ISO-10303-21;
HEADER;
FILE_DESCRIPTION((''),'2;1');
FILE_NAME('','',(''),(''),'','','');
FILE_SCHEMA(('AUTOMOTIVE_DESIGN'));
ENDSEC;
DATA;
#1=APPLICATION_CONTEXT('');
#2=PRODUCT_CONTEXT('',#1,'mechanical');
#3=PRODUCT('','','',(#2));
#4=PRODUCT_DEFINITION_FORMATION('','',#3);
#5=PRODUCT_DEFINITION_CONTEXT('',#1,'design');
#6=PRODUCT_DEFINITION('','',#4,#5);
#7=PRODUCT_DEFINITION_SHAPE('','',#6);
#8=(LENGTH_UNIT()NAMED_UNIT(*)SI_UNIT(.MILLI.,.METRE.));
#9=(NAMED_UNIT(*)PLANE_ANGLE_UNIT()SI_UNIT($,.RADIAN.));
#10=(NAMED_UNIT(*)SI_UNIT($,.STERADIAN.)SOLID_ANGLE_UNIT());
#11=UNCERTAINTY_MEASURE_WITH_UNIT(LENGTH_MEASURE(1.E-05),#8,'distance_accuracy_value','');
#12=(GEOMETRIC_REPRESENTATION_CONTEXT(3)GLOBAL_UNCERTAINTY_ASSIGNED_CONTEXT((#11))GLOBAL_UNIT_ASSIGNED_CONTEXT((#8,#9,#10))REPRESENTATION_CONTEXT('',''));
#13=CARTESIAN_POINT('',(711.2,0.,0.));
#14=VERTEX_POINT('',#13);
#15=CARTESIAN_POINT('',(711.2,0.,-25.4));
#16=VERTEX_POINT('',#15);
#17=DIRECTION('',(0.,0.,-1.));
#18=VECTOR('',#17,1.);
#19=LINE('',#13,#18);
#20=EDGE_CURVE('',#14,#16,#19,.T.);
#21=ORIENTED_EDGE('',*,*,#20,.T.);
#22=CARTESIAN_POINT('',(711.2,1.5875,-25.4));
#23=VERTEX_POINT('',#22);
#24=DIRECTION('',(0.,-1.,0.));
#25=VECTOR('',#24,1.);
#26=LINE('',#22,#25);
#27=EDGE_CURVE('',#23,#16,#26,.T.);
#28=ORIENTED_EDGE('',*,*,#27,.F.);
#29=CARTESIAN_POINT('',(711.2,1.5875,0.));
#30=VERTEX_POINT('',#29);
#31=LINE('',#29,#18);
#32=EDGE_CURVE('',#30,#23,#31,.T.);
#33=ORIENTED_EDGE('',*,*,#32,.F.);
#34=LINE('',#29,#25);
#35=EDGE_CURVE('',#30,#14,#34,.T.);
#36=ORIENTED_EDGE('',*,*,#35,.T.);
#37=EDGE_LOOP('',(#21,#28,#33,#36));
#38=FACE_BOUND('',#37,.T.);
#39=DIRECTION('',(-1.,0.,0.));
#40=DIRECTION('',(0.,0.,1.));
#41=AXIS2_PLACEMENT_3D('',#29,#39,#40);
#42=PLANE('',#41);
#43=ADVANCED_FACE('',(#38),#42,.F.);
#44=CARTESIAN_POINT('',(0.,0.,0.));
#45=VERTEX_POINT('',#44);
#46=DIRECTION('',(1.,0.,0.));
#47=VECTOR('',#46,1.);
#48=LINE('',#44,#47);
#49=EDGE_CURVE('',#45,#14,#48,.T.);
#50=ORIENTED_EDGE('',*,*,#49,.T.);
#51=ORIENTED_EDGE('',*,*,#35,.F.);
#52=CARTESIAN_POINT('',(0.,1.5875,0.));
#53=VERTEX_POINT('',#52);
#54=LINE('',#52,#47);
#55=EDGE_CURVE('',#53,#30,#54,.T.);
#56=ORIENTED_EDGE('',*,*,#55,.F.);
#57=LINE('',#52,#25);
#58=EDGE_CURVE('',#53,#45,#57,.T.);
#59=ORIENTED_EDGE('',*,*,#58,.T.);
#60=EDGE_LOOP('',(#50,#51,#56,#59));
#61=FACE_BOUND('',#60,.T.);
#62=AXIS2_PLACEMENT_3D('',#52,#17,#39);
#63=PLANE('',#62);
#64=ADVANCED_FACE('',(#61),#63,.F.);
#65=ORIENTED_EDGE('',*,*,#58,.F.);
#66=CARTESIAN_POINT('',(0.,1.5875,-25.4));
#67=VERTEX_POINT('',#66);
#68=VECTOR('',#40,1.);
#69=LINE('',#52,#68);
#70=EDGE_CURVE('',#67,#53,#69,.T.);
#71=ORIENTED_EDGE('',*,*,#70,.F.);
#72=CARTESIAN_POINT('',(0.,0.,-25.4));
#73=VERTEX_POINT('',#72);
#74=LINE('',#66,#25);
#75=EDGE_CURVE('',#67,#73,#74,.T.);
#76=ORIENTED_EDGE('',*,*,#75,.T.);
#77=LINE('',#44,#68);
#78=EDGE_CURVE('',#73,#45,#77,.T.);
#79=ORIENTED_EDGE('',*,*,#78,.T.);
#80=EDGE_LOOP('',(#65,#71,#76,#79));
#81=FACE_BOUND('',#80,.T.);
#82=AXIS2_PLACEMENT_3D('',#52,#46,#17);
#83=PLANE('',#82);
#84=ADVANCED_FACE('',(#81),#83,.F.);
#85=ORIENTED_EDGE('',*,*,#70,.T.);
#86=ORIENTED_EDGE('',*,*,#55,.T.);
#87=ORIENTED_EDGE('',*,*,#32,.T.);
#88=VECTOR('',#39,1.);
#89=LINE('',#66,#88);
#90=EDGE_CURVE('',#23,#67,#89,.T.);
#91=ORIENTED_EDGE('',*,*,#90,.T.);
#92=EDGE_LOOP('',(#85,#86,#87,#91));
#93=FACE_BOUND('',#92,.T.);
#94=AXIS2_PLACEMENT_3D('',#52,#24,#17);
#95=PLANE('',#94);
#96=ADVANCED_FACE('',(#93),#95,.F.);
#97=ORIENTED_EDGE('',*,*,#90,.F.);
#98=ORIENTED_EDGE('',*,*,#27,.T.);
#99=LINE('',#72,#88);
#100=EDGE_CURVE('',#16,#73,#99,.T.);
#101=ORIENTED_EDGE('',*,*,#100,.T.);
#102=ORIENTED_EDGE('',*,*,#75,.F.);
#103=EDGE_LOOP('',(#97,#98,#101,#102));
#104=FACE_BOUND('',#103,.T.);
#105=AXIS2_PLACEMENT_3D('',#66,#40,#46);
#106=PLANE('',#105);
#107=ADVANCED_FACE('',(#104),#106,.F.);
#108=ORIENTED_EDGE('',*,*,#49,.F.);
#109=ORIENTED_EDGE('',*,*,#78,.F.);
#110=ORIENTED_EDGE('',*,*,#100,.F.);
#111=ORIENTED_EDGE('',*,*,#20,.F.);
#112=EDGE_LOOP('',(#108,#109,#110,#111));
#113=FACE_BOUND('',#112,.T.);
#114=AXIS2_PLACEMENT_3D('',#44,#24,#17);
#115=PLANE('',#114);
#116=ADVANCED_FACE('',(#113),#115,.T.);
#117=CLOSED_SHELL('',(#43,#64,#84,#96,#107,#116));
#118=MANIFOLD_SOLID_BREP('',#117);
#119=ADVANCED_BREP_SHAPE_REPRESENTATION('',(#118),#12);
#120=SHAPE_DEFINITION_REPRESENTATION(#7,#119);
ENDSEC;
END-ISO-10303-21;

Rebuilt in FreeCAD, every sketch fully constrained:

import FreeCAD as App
import Part
import Sketcher
Q = App.Units.Quantity

doc = App.newDocument("Part")
body = doc.addObject("PartDesign::Body", "Body")

# Sketch on XZ plane
sketch1 = body.newObject("Sketcher::SketchObject", "Sketch")
sketch1.AttachmentSupport = (doc.getObject("XZ_Plane"), [""])
sketch1.MapMode = "FlatFace"
sketch1.addGeometry(Part.LineSegment(App.Vector(0, -25.4, 0), App.Vector(0, 0, 0)), False)
sketch1.addGeometry(Part.LineSegment(App.Vector(0, 0, 0), App.Vector(711.2, 0, 0)), False)
sketch1.addGeometry(Part.LineSegment(App.Vector(711.2, 0, 0), App.Vector(711.2, -25.4, 0)), False)
sketch1.addGeometry(Part.LineSegment(App.Vector(711.2, -25.4, 0), App.Vector(0, -25.4, 0)), False)
sketch1.addConstraint(Sketcher.Constraint("Coincident", 0, 2, 1, 1))
sketch1.addConstraint(Sketcher.Constraint("Coincident", 1, 2, 2, 1))
sketch1.addConstraint(Sketcher.Constraint("Coincident", 2, 2, 3, 1))
sketch1.addConstraint(Sketcher.Constraint("Coincident", 3, 2, 0, 1))
sketch1.addConstraint(Sketcher.Constraint("Vertical", 0))
sketch1.addConstraint(Sketcher.Constraint("Horizontal", 1))
sketch1.addConstraint(Sketcher.Constraint("Vertical", 2))
sketch1.addConstraint(Sketcher.Constraint("Horizontal", 3))
sketch1.addConstraint(Sketcher.Constraint("Coincident", 0, 2, -1, 1))
sketch1.addConstraint(Sketcher.Constraint("DistanceX", 1, 1, 1, 2, Q("28 in")))
sketch1.addConstraint(Sketcher.Constraint("DistanceY", 0, 1, 0, 2, Q("1 in")))
pad1 = body.newObject("PartDesign::Pad", "Pad")
pad1.Profile = sketch1
pad1.Length = Q("0.0625 in")
pad1.Reversed = True

doc.recompute()
